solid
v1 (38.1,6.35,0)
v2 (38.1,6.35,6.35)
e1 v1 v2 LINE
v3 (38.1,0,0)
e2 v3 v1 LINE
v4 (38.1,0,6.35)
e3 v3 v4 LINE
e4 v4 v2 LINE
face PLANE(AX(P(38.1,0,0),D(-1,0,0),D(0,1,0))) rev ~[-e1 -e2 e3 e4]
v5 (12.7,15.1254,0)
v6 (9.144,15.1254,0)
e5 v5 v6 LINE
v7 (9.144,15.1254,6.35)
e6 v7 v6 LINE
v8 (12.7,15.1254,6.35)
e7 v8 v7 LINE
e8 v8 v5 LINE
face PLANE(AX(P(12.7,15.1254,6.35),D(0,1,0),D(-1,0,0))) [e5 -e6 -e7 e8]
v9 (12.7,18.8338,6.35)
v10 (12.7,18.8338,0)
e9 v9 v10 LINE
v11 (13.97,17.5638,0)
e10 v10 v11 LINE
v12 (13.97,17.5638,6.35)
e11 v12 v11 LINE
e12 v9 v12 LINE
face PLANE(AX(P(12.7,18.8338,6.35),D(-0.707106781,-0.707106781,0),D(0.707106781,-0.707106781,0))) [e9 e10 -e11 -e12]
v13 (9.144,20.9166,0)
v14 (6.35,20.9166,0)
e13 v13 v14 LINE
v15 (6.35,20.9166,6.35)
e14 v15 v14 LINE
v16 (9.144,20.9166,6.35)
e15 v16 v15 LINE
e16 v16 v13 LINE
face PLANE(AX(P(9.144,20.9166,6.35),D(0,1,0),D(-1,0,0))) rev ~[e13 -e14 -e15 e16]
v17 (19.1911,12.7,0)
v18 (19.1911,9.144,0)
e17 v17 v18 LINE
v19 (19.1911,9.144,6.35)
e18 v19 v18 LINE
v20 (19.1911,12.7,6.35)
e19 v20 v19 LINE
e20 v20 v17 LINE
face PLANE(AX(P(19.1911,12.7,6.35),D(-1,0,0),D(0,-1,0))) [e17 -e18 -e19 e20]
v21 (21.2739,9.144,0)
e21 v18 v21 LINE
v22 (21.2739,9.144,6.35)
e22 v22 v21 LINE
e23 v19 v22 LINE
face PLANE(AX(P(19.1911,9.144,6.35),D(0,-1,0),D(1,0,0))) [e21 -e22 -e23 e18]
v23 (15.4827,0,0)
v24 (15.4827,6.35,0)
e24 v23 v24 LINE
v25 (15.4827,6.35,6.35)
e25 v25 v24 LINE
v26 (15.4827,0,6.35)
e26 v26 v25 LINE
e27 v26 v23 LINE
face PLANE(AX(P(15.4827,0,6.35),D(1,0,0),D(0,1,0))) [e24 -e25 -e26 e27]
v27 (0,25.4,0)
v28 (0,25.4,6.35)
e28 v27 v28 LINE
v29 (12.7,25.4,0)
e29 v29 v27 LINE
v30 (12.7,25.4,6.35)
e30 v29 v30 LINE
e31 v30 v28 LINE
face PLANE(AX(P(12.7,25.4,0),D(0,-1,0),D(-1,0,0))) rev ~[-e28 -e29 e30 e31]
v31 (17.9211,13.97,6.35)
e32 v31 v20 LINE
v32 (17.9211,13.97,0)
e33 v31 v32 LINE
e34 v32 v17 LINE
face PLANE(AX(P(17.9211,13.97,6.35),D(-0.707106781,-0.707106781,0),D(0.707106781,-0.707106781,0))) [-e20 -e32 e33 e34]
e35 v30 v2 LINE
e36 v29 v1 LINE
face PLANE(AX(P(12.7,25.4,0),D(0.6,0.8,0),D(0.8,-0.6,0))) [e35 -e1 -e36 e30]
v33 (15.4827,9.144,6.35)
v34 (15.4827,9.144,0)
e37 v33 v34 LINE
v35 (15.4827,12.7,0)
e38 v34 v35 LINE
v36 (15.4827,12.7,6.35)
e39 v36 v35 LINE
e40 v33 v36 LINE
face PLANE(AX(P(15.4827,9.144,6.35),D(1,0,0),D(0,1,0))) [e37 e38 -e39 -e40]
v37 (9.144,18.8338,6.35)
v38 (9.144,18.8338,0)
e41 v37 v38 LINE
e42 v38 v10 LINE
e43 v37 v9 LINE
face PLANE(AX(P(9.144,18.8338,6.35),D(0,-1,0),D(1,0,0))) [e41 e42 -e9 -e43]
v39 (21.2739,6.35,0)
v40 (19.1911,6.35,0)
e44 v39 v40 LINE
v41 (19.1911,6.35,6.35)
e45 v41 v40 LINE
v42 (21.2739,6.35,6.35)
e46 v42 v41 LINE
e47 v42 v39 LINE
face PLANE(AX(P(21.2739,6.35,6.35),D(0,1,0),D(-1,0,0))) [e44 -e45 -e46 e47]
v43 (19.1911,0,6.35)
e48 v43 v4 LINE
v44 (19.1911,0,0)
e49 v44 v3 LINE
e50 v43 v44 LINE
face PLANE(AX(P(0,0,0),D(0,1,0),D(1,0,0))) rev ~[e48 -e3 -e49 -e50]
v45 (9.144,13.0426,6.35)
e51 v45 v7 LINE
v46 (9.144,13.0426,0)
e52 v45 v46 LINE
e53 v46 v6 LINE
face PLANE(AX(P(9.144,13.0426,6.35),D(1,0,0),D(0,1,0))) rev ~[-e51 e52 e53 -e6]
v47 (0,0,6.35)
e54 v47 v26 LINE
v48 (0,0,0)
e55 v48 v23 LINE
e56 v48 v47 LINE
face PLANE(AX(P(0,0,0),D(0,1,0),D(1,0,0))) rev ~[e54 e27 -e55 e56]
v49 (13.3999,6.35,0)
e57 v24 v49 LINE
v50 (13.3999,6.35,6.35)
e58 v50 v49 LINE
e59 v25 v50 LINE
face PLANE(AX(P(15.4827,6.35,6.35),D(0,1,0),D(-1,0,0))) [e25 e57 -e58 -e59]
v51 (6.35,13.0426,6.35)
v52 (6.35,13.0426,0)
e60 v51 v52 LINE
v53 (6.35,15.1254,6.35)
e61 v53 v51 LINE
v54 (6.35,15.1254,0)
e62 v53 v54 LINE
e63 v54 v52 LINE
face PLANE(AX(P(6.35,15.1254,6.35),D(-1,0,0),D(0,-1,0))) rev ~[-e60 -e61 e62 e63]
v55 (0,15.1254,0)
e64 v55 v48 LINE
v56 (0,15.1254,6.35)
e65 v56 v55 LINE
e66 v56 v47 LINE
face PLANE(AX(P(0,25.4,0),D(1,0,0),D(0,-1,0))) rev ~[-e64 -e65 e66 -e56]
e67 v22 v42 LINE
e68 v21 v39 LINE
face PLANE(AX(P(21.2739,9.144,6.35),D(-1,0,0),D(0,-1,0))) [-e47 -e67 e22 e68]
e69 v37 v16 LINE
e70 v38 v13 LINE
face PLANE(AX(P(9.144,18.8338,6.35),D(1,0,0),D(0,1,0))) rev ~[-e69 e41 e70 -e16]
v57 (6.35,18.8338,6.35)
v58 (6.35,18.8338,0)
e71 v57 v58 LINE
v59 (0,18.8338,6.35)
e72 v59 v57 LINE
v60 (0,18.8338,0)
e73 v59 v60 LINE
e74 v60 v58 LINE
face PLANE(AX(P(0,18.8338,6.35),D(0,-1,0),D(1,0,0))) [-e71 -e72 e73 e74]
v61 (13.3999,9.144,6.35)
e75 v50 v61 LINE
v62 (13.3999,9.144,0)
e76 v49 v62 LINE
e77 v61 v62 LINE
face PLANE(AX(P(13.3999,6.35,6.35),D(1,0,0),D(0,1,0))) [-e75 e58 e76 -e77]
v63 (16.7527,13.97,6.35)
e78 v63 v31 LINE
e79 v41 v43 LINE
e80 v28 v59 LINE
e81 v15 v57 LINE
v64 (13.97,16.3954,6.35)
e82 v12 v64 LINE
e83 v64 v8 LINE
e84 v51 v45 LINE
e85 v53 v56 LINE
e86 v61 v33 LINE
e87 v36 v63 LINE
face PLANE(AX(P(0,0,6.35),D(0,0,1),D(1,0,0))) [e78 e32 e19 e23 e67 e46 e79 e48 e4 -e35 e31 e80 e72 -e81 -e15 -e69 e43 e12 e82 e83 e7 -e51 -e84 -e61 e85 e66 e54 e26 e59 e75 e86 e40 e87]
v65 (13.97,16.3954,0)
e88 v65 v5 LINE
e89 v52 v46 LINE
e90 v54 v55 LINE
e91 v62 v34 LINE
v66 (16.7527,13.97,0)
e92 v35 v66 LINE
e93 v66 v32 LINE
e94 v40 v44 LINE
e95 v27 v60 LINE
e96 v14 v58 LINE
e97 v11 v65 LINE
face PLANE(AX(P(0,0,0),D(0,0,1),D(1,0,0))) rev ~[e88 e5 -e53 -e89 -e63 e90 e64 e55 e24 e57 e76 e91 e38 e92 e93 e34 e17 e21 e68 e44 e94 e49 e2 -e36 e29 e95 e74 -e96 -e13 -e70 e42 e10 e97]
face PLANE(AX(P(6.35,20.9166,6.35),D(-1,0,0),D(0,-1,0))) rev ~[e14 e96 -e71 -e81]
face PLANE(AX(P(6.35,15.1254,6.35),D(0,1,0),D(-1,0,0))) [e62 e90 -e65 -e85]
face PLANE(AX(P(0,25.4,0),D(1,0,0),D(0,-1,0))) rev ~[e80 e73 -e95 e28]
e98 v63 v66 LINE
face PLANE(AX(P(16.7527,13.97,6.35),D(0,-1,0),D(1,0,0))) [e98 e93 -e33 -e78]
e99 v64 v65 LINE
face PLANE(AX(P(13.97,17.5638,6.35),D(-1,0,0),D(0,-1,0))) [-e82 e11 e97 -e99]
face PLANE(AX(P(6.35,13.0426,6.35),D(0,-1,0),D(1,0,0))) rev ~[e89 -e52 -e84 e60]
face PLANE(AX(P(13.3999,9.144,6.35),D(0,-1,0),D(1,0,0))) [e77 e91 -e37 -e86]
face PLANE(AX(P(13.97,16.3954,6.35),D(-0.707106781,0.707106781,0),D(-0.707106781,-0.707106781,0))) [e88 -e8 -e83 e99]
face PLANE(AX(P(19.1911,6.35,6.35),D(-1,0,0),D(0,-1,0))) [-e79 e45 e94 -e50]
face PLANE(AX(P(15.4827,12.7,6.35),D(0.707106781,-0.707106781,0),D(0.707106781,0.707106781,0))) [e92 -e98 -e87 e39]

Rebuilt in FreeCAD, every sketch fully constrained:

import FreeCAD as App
import Part
import Sketcher
Q = App.Units.Quantity

doc = App.newDocument("Part")
body = doc.addObject("PartDesign::Body", "Body")

sketch1 = body.newObject("Sketcher::SketchObject", "Sketch")
sketch1.AttachmentSupport = (doc.getObject("XY_Plane"), [""])
sketch1.MapMode = "FlatFace"
sketch1.addGeometry(Part.LineSegment(App.Vector(0, 25.4, 0), App.Vector(0, 0, 0)), False)
sketch1.addGeometry(Part.LineSegment(App.Vector(0, 0, 0), App.Vector(38.1, 0, 0)), False)
sketch1.addGeometry(Part.LineSegment(App.Vector(38.1, 0, 0), App.Vector(38.1, 6.35, 0)), False)
sketch1.addGeometry(Part.LineSegment(App.Vector(38.1, 6.35, 0), App.Vector(12.7, 25.4, 0)), False)
sketch1.addGeometry(Part.LineSegment(App.Vector(12.7, 25.4, 0), App.Vector(0, 25.4, 0)), False)
sketch1.addConstraint(Sketcher.Constraint("Coincident", 0, 2, 1, 1))
sketch1.addConstraint(Sketcher.Constraint("Coincident", 1, 2, 2, 1))
sketch1.addConstraint(Sketcher.Constraint("Coincident", 2, 2, 3, 1))
sketch1.addConstraint(Sketcher.Constraint("Coincident", 3, 2, 4, 1))
sketch1.addConstraint(Sketcher.Constraint("Coincident", 4, 2, 0, 1))
sketch1.addConstraint(Sketcher.Constraint("Vertical", 0))
sketch1.addConstraint(Sketcher.Constraint("Horizontal", 1))
sketch1.addConstraint(Sketcher.Constraint("Vertical", 2))
sketch1.addConstraint(Sketcher.Constraint("Horizontal", 4))
sketch1.addConstraint(Sketcher.Constraint("Coincident", 0, 2, -1, 1))
sketch1.addConstraint(Sketcher.Constraint("DistanceY", 0, 2, 0, 1, Q("1 in")))
sketch1.addConstraint(Sketcher.Constraint("DistanceX", 1, 1, 1, 2, Q("1.5 in")))
sketch1.addConstraint(Sketcher.Constraint("DistanceX", 4, 2, 4, 1, Q("0.5 in")))
sketch1.addConstraint(Sketcher.Constraint("DistanceY", 2, 1, 2, 2, Q("0.25 in")))
pad1 = body.newObject("PartDesign::Pad", "Pad")
pad1.Profile = sketch1
pad1.Length = Q("0.25 in")

sketch2 = body.newObject("Sketcher::SketchObject", "Sketch001")
sketch2.AttachmentSupport = (doc.getObject("XY_Plane"), [""])
sketch2.MapMode = "FlatFace"
sketch2.AttachmentOffset = App.Placement(App.Vector(0, 0, 0.25 * 25.4), App.Rotation())
sketch2.addGeometry(Part.LineSegment(App.Vector(15.4827, 6.35, 0), App.Vector(15.4827, 0, 0)), False)
sketch2.addGeometry(Part.LineSegment(App.Vector(15.4827, 0, 0), App.Vector(19.1911, 0, 0)), False)
sketch2.addGeometry(Part.LineSegment(App.Vector(19.1911, 0, 0), App.Vector(19.1911, 6.35, 0)), False)
sketch2.addGeometry(Part.LineSegment(App.Vector(19.1911, 6.35, 0), App.Vector(21.2739, 6.35, 0)), False)
sketch2.addGeometry(Part.LineSegment(App.Vector(21.2739, 6.35, 0), App.Vector(21.2739, 9.144, 0)), False)
sketch2.addGeometry(Part.LineSegment(App.Vector(21.2739, 9.144, 0), App.Vector(19.1911, 9.144, 0)), False)
sketch2.addGeometry(Part.LineSegment(App.Vector(19.1911, 9.144, 0), App.Vector(19.1911, 12.7, 0)), False)
sketch2.addGeometry(Part.LineSegment(App.Vector(19.1911, 12.7, 0), App.Vector(17.9211, 13.97, 0)), False)
sketch2.addGeometry(Part.LineSegment(App.Vector(17.9211, 13.97, 0), App.Vector(16.7527, 13.97, 0)), False)
sketch2.addGeometry(Part.LineSegment(App.Vector(16.7527, 13.97, 0), App.Vector(15.4827, 12.7, 0)), False)
sketch2.addGeometry(Part.LineSegment(App.Vector(15.4827, 12.7, 0), App.Vector(15.4827, 9.144, 0)), False)
sketch2.addGeometry(Part.LineSegment(App.Vector(15.4827, 9.144, 0), App.Vector(13.3999, 9.144, 0)), False)
sketch2.addGeometry(Part.LineSegment(App.Vector(13.3999, 9.144, 0), App.Vector(13.3999, 6.35, 0)), False)
sketch2.addGeometry(Part.LineSegment(App.Vector(13.3999, 6.35, 0), App.Vector(15.4827, 6.35, 0)), False)
sketch2.addGeometry(Part.LineSegment(App.Vector(0, 18.8338, 0), App.Vector(0, 15.1254, 0)), False)
sketch2.addGeometry(Part.LineSegment(App.Vector(0, 15.1254, 0), App.Vector(6.35, 15.1254, 0)), False)
sketch2.addGeometry(Part.LineSegment(App.Vector(6.35, 15.1254, 0), App.Vector(6.35, 13.0426, 0)), False)
sketch2.addGeometry(Part.LineSegment(App.Vector(6.35, 13.0426, 0), App.Vector(9.144, 13.0426, 0)), False)
sketch2.addGeometry(Part.LineSegment(App.Vector(9.144, 13.0426, 0), App.Vector(9.144, 15.1254, 0)), False)
sketch2.addGeometry(Part.LineSegment(App.Vector(9.144, 15.1254, 0), App.Vector(12.7, 15.1254, 0)), False)
sketch2.addGeometry(Part.LineSegment(App.Vector(12.7, 15.1254, 0), App.Vector(13.97, 16.3954, 0)), False)
sketch2.addGeometry(Part.LineSegment(App.Vector(13.97, 16.3954, 0), App.Vector(13.97, 17.5638, 0)), False)
sketch2.addGeometry(Part.LineSegment(App.Vector(13.97, 17.5638, 0), App.Vector(12.7, 18.8338, 0)), False)
sketch2.addGeometry(Part.LineSegment(App.Vector(12.7, 18.8338, 0), App.Vector(9.144, 18.8338, 0)), False)
sketch2.addGeometry(Part.LineSegment(App.Vector(9.144, 18.8338, 0), App.Vector(9.144, 20.9166, 0)), False)
sketch2.addGeometry(Part.LineSegment(App.Vector(9.144, 20.9166, 0), App.Vector(6.35, 20.9166, 0)), False)
sketch2.addGeometry(Part.LineSegment(App.Vector(6.35, 20.9166, 0), App.Vector(6.35, 18.8338, 0)), False)
sketch2.addGeometry(Part.LineSegment(App.Vector(6.35, 18.8338, 0), App.Vector(0, 18.8338, 0)), False)
sketch2.addConstraint(Sketcher.Constraint("Coincident", 0, 2, 1, 1))
sketch2.addConstraint(Sketcher.Constraint("Coincident", 1, 2, 2, 1))
sketch2.addConstraint(Sketcher.Constraint("Coincident", 2, 2, 3, 1))
sketch2.addConstraint(Sketcher.Constraint("Coincident", 3, 2, 4, 1))
sketch2.addConstraint(Sketcher.Constraint("Coincident", 4, 2, 5, 1))
sketch2.addConstraint(Sketcher.Constraint("Coincident", 5, 2, 6, 1))
sketch2.addConstraint(Sketcher.Constraint("Coincident", 6, 2, 7, 1))
sketch2.addConstraint(Sketcher.Constraint("Coincident", 7, 2, 8, 1))
sketch2.addConstraint(Sketcher.Constraint("Coincident", 8, 2, 9, 1))
sketch2.addConstraint(Sketcher.Constraint("Coincident", 9, 2, 10, 1))
sketch2.addConstraint(Sketcher.Constraint("Coincident", 10, 2, 11, 1))
sketch2.addConstraint(Sketcher.Constraint("Coincident", 11, 2, 12, 1))
sketch2.addConstraint(Sketcher.Constraint("Coincident", 12, 2, 13, 1))
sketch2.addConstraint(Sketcher.Constraint("Coincident", 13, 2, 0, 1))
sketch2.addConstraint(Sketcher.Constraint("Coincident", 14, 2, 15, 1))
sketch2.addConstraint(Sketcher.Constraint("Coincident", 15, 2, 16, 1))
sketch2.addConstraint(Sketcher.Constraint("Coincident", 16, 2, 17, 1))
sketch2.addConstraint(Sketcher.Constraint("Coincident", 17, 2, 18, 1))
sketch2.addConstraint(Sketcher.Constraint("Coincident", 18, 2, 19, 1))
sketch2.addConstraint(Sketcher.Constraint("Coincident", 19, 2, 20, 1))
sketch2.addConstraint(Sketcher.Constraint("Coincident", 20, 2, 21, 1))
sketch2.addConstraint(Sketcher.Constraint("Coincident", 21, 2, 22, 1))
sketch2.addConstraint(Sketcher.Constraint("Coincident", 22, 2, 23, 1))
sketch2.addConstraint(Sketcher.Constraint("Coincident", 23, 2, 24, 1))
sketch2.addConstraint(Sketcher.Constraint("Coincident", 24, 2, 25, 1))
sketch2.addConstraint(Sketcher.Constraint("Coincident", 25, 2, 26, 1))
sketch2.addConstraint(Sketcher.Constraint("Coincident", 26, 2, 27, 1))
sketch2.addConstraint(Sketcher.Constraint("Coincident", 27, 2, 14, 1))
sketch2.addConstraint(Sketcher.Constraint("Vertical", 0))
sketch2.addConstraint(Sketcher.Constraint("Horizontal", 1))
sketch2.addConstraint(Sketcher.Constraint("Vertical", 2))
sketch2.addConstraint(Sketcher.Constraint("Horizontal", 3))
sketch2.addConstraint(Sketcher.Constraint("Vertical", 4))
sketch2.addConstraint(Sketcher.Constraint("Horizontal", 5))
sketch2.addConstraint(Sketcher.Constraint("Vertical", 6))
sketch2.addConstraint(Sketcher.Constraint("Horizontal", 8))
sketch2.addConstraint(Sketcher.Constraint("Vertical", 10))
sketch2.addConstraint(Sketcher.Constraint("Horizontal", 11))
sketch2.addConstraint(Sketcher.Constraint("Vertical", 12))
sketch2.addConstraint(Sketcher.Constraint("Horizontal", 13))
sketch2.addConstraint(Sketcher.Constraint("Vertical", 14))
sketch2.addConstraint(Sketcher.Constraint("Horizontal", 15))
sketch2.addConstraint(Sketcher.Constraint("Vertical", 16))
sketch2.addConstraint(Sketcher.Constraint("Horizontal", 17))
sketch2.addConstraint(Sketcher.Constraint("Vertical", 18))
sketch2.addConstraint(Sketcher.Constraint("Horizontal", 19))
sketch2.addConstraint(Sketcher.Constraint("Vertical", 21))
sketch2.addConstraint(Sketcher.Constraint("Horizontal", 23))
sketch2.addConstraint(Sketcher.Constraint("Vertical", 24))
sketch2.addConstraint(Sketcher.Constraint("Horizontal", 25))
sketch2.addConstraint(Sketcher.Constraint("Vertical", 26))
sketch2.addConstraint(Sketcher.Constraint("Horizontal", 27))
sketch2.addConstraint(Sketcher.Constraint("PointOnObject", 0, 2, -1))
sketch2.addConstraint(Sketcher.Constraint("PointOnObject", 14, 2, -2))
sketch2.addConstraint(Sketcher.Constraint("Perpendicular", 7, 9))
sketch2.addConstraint(Sketcher.Constraint("Parallel", 9, 20))
sketch2.addConstraint(Sketcher.Constraint("Perpendicular", 20, 22))
sketch2.addConstraint(Sketcher.Constraint("Horizontal", 6, 2, 9, 2))
sketch2.addConstraint(Sketcher.Constraint("Horizontal", 5, 2, 10, 2))
sketch2.addConstraint(Sketcher.Constraint("Horizontal", 3, 2, 12, 2))
sketch2.addConstraint(Sketcher.Constraint("Horizontal", 15, 2, 18, 2))
sketch2.addConstraint(Sketcher.Constraint("Horizontal", 23, 2, 26, 2))
sketch2.addConstraint(Sketcher.Constraint("Vertical", 2, 2, 5, 2))
sketch2.addConstraint(Sketcher.Constraint("Vertical", 0, 2, 9, 2))
sketch2.addConstraint(Sketcher.Constraint("Vertical", 19, 2, 22, 2))
sketch2.addConstraint(Sketcher.Constraint("Vertical", 18, 2, 23, 2))
sketch2.addConstraint(Sketcher.Constraint("Vertical", 16, 2, 25, 2))
sketch2.addConstraint(Sketcher.Constraint("Equal", 5, 11))
sketch2.addConstraint(Sketcher.Constraint("Equal", 27, 0))
sketch2.addConstraint(Sketcher.Constraint("Equal", 25, 4))
sketch2.addConstraint(Sketcher.Constraint("Equal", 23, 6))
sketch2.addConstraint(Sketcher.Constraint("Equal", 1, 14))
sketch2.addConstraint(Sketcher.Constraint("Equal", 13, 16))
sketch2.addConstraint(Sketcher.Constraint("Equal", 8, 21))
sketch2.addConstraint(Sketcher.Constraint("Equal", 18, 24))
sketch2.addConstraint(Sketcher.Constraint("Equal", 7, 9))
sketch2.addConstraint(Sketcher.Constraint("DistanceX", 15, 1, 15, 2, Q("0.25 in")))
sketch2.addConstraint(Sketcher.Constraint("DistanceX", 17, 1, 17, 2, Q("0.11 in")))
sketch2.addConstraint(Sketcher.Constraint("DistanceX", 3, 1, 3, 2, Q("0.082 in")))
sketch2.addConstraint(Sketcher.Constraint("DistanceY", -1, 1, 7, 2, Q("0.55 in")))
sketch2.addConstraint(Sketcher.Constraint("DistanceY", 2, 2, 6, 2, Q("0.25 in")))
sketch2.addConstraint(Sketcher.Constraint("DistanceX", 1, 1, 1, 2, Q("0.146 in")))
sketch2.addConstraint(Sketcher.Constraint("DistanceY", -1, 1, 14, 2, Q("0.5955 in")))
sketch2.addConstraint(Sketcher.Constraint("DistanceX", -1, 1, 0, 2, 15.4827))
pocket1 = body.newObject("PartDesign::Pocket", "Pocket")
pocket1.Profile = sketch2
pocket1.Type = "ThroughAll"

doc.recompute()
